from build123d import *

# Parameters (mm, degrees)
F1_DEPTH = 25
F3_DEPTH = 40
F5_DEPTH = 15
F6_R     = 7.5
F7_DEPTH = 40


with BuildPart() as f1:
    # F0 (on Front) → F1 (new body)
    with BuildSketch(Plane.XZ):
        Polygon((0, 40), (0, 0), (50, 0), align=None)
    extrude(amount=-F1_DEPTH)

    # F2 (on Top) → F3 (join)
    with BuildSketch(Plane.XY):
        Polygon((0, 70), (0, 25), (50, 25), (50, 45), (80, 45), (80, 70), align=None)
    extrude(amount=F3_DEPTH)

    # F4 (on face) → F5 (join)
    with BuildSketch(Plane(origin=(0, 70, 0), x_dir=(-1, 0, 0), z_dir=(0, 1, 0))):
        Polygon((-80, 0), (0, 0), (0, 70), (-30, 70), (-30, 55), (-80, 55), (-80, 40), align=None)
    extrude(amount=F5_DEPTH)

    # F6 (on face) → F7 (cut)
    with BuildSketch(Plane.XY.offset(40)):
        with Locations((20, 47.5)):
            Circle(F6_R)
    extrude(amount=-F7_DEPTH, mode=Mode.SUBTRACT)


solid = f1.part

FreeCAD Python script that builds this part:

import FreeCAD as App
import Part
import Sketcher

V = App.Vector

doc = App.newDocument("Part")
body = doc.addObject("PartDesign::Body", "Body")

# Sketch on XZ plane
sketch1 = body.newObject("Sketcher::SketchObject", "Sketch")
sketch1.AttachmentSupport = (doc.getObject("XZ_Plane"), [""])
sketch1.MapMode = "FlatFace"
sketch1.addGeometry([
    Part.LineSegment(V(0, 40, 0), V(0, 0, 0)),
    Part.LineSegment(V(0, 0, 0), V(50, 0, 0)),
    Part.LineSegment(V(50, 0, 0), V(0, 40, 0)),
], False)
sketch1.addConstraint([
    Sketcher.Constraint("Coincident", 0, 2, 1, 1),
    Sketcher.Constraint("Coincident", 1, 2, 2, 1),
    Sketcher.Constraint("Coincident", 2, 2, 0, 1),
    Sketcher.Constraint("Vertical", 0),
    Sketcher.Constraint("Horizontal", 1),
    Sketcher.Constraint("Coincident", 0, 2, -1, 1),
    Sketcher.Constraint("DistanceX", 1, 1, 1, 2, 50.0),
    Sketcher.Constraint("DistanceY", 0, 2, 0, 1, 40.0),
])
pad1 = body.newObject("PartDesign::Pad", "Pad")
pad1.Profile = sketch1
pad1.Length = 25
pad1.Reversed = True

# Sketch on XY plane
sketch2 = body.newObject("Sketcher::SketchObject", "Sketch001")
sketch2.AttachmentSupport = (doc.getObject("XY_Plane"), [""])
sketch2.MapMode = "FlatFace"
sketch2.addGeometry([
    Part.LineSegment(V(0, 70, 0), V(0, 25, 0)),  # 0
    Part.LineSegment(V(0, 25, 0), V(50, 25, 0)),  # 1
    Part.LineSegment(V(50, 25, 0), V(50, 45, 0)),  # 2
    Part.LineSegment(V(50, 45, 0), V(80, 45, 0)),  # 3
    Part.LineSegment(V(80, 45, 0), V(80, 70, 0)),  # 4
    Part.LineSegment(V(80, 70, 0), V(0, 70, 0)),  # 5
], False)
sketch2.addConstraint([
    Sketcher.Constraint("Coincident", 0, 2, 1, 1),
    Sketcher.Constraint("Coincident", 1, 2, 2, 1),
    Sketcher.Constraint("Coincident", 2, 2, 3, 1),
    Sketcher.Constraint("Coincident", 3, 2, 4, 1),
    Sketcher.Constraint("Coincident", 4, 2, 5, 1),
    Sketcher.Constraint("Coincident", 5, 2, 0, 1),
    Sketcher.Constraint("Vertical", 0),
    Sketcher.Constraint("Horizontal", 1),
    Sketcher.Constraint("Vertical", 2),
    Sketcher.Constraint("Horizontal", 3),
    Sketcher.Constraint("Vertical", 4),
    Sketcher.Constraint("Horizontal", 5),
    Sketcher.Constraint("PointOnObject", 0, 2, -2),
    Sketcher.Constraint("DistanceX", 1, 1, 1, 2, 50.0),
    Sketcher.Constraint("DistanceX", 3, 1, 3, 2, 30.0),
    Sketcher.Constraint("DistanceY", 0, 2, 0, 1, 45.0),
    Sketcher.Constraint("DistanceY", 2, 1, 2, 2, 20.0),
    Sketcher.Constraint("DistanceY", -1, 1, 0, 2, 25.0),
])
pad2 = body.newObject("PartDesign::Pad", "Pad001")
pad2.Profile = sketch2
pad2.Length = 40

# Sketch on XZ plane
sketch3 = body.newObject("Sketcher::SketchObject", "Sketch002")
sketch3.AttachmentSupport = (doc.getObject("XZ_Plane"), [""])
sketch3.MapMode = "FlatFace"
sketch3.AttachmentOffset = App.Placement(V(0, 0, -70), App.Rotation())
sketch3.addGeometry([
    Part.LineSegment(V(80, 0, 0), V(0, 0, 0)),  # 0
    Part.LineSegment(V(0, 0, 0), V(0, 70, 0)),  # 1
    Part.LineSegment(V(0, 70, 0), V(30, 70, 0)),  # 2
    Part.LineSegment(V(30, 70, 0), V(30, 55, 0)),  # 3
    Part.LineSegment(V(30, 55, 0), V(80, 55, 0)),  # 4
    Part.LineSegment(V(80, 55, 0), V(80, 0, 0)),  # 5
], False)
sketch3.addConstraint([
    Sketcher.Constraint("Coincident", 0, 2, 1, 1),
    Sketcher.Constraint("Coincident", 1, 2, 2, 1),
    Sketcher.Constraint("Coincident", 2, 2, 3, 1),
    Sketcher.Constraint("Coincident", 3, 2, 4, 1),
    Sketcher.Constraint("Coincident", 4, 2, 5, 1),
    Sketcher.Constraint("Coincident", 5, 2, 0, 1),
    Sketcher.Constraint("Horizontal", 0),
    Sketcher.Constraint("Vertical", 1),
    Sketcher.Constraint("Horizontal", 2),
    Sketcher.Constraint("Vertical", 3),
    Sketcher.Constraint("Horizontal", 4),
    Sketcher.Constraint("Vertical", 5),
    Sketcher.Constraint("Coincident", 0, 2, -1, 1),
    Sketcher.Constraint("DistanceX", 0, 2, 0, 1, 80.0),
    Sketcher.Constraint("DistanceX", 2, 1, 2, 2, 30.0),
    Sketcher.Constraint("DistanceY", 1, 1, 1, 2, 70.0),
    Sketcher.Constraint("DistanceY", 3, 2, 3, 1, 15.0),
])
pad3 = body.newObject("PartDesign::Pad", "Pad002")
pad3.Profile = sketch3
pad3.Length = 15
pad3.Reversed = True

# Sketch on XY plane
sketch4 = body.newObject("Sketcher::SketchObject", "Sketch003")
sketch4.AttachmentSupport = (doc.getObject("XY_Plane"), [""])
sketch4.MapMode = "FlatFace"
sketch4.AttachmentOffset = App.Placement(V(0, 0, 40), App.Rotation())
sketch4.addGeometry(Part.Circle(V(20, 47.5, 0), V(0, 0, 1), 7.5), False)
sketch4.addConstraint([
    Sketcher.Constraint("Diameter", 0, 15.0),
    Sketcher.Constraint("DistanceX", -1, 1, 0, 3, 20.0),
    Sketcher.Constraint("DistanceY", -1, 1, 0, 3, 47.5),
])
pocket1 = body.newObject("PartDesign::Pocket", "Pocket")
pocket1.Profile = sketch4
pocket1.Length = 40

doc.recompute()
